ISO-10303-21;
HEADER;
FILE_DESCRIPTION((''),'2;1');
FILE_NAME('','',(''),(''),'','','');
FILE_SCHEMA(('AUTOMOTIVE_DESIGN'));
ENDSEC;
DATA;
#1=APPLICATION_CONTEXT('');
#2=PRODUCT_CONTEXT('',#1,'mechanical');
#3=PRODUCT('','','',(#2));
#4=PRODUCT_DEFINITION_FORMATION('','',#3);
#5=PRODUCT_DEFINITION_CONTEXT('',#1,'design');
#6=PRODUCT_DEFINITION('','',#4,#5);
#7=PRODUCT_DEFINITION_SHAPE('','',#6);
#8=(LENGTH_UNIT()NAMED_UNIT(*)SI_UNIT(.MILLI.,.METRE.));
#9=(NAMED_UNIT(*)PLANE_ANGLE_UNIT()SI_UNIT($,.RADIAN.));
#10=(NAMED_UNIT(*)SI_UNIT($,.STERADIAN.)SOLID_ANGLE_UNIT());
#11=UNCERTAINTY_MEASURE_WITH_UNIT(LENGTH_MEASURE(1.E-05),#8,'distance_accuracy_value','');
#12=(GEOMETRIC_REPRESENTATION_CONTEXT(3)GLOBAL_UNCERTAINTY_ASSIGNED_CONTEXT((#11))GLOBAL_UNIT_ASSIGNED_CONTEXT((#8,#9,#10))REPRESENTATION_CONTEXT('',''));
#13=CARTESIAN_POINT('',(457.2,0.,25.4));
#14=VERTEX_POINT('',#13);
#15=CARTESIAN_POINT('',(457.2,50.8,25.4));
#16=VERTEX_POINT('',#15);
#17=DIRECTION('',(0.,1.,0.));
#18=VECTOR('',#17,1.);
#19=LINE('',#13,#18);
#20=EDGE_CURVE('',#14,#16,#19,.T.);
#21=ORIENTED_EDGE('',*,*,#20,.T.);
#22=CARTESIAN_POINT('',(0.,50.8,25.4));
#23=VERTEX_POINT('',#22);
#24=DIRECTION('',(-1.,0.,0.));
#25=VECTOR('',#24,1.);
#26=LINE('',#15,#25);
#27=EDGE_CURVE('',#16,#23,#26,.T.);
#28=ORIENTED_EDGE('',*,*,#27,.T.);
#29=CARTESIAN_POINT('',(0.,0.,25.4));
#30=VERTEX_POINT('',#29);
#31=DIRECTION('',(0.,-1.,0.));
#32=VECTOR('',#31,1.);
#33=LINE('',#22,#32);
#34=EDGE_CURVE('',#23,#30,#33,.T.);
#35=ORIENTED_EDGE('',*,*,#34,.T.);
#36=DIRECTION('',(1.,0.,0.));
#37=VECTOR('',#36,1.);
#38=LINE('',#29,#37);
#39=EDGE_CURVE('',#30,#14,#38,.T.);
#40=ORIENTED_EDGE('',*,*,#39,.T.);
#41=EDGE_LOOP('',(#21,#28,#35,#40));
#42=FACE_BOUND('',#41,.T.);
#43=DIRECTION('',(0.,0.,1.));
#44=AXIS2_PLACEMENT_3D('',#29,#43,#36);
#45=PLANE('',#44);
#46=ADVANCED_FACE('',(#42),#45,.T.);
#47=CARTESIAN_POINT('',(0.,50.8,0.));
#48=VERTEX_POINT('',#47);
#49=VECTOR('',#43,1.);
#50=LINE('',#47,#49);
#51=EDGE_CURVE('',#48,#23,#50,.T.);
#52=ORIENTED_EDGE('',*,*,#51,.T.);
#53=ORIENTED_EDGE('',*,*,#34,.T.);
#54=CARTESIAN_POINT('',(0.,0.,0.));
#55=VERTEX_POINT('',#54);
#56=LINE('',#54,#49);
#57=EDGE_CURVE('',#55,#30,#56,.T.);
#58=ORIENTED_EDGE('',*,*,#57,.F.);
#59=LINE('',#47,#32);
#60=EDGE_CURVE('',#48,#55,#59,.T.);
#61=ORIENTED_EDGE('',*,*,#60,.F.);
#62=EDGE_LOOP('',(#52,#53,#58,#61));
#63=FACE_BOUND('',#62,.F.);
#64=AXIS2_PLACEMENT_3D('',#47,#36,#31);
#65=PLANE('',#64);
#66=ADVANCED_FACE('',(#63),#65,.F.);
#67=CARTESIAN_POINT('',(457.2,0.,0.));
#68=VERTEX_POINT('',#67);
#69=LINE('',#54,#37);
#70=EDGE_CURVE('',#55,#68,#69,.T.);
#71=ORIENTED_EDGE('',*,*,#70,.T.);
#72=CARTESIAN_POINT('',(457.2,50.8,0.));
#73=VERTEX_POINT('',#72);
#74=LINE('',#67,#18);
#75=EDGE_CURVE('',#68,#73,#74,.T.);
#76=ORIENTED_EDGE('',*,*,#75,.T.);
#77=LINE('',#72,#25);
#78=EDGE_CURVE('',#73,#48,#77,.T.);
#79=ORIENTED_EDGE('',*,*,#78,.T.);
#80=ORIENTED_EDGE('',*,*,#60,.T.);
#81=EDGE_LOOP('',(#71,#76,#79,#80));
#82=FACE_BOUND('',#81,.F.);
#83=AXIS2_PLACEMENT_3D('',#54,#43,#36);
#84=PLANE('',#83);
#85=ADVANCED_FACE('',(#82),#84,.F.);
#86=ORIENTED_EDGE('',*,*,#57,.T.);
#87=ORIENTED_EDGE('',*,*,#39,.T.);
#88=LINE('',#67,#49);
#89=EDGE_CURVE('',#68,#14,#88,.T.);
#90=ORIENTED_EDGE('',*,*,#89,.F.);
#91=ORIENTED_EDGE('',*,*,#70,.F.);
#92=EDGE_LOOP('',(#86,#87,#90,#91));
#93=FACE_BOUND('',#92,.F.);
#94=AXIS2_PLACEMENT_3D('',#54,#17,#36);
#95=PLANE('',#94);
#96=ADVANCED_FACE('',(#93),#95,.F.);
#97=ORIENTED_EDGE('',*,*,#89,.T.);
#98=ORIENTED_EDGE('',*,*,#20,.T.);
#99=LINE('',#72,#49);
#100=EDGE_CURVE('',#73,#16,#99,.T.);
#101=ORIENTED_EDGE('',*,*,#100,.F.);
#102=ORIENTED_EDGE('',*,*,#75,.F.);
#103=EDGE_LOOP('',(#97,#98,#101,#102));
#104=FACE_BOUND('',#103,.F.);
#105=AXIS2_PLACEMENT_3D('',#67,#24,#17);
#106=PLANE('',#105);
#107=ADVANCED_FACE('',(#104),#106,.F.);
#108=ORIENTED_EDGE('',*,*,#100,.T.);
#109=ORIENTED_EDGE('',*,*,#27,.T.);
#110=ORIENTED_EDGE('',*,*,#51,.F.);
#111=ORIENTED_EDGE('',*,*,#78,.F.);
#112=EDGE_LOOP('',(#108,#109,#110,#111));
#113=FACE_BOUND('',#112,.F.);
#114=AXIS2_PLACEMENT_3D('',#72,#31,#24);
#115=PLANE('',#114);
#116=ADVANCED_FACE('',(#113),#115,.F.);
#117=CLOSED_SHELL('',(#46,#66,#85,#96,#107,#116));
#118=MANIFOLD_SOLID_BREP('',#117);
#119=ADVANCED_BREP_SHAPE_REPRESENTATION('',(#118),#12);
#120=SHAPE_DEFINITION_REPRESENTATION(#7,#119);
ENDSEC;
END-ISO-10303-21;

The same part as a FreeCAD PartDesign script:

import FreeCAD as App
import Part
import Sketcher
Q = App.Units.Quantity

doc = App.newDocument("Part")
params = doc.addObject("Spreadsheet::Sheet", "Params")
for row, (alias, value) in enumerate([
    ("sketch1_width", "18 in"),
    ("sketch1_height", "2 in"),
    ("pad1_length", "1 in"),
], start=1):
    params.set(f"A{row}", alias)
    params.set(f"B{row}", "=" + value)
    params.setAlias(f"B{row}", alias)

body = doc.addObject("PartDesign::Body", "Body")

# Sketch on XY plane
sketch1 = body.newObject("Sketcher::SketchObject", "Sketch")
sketch1.AttachmentSupport = (doc.getObject("XY_Plane"), [""])
sketch1.MapMode = "FlatFace"
sketch1.addGeometry([
    Part.LineSegment(App.Vector(0, 51, 0), App.Vector(0, 0, 0)),
    Part.LineSegment(App.Vector(0, 0, 0), App.Vector(457, 0, 0)),
    Part.LineSegment(App.Vector(457, 0, 0), App.Vector(457, 51, 0)),
    Part.LineSegment(App.Vector(457, 51, 0), App.Vector(0, 51, 0)),
], False)
sketch1.addConstraint([
    Sketcher.Constraint("Coincident", 0, 2, 1, 1),
    Sketcher.Constraint("Coincident", 1, 2, 2, 1),
    Sketcher.Constraint("Coincident", 2, 2, 3, 1),
    Sketcher.Constraint("Coincident", 3, 2, 0, 1),
    Sketcher.Constraint("Vertical", 0),
    Sketcher.Constraint("Horizontal", 1),
    Sketcher.Constraint("Vertical", 2),
    Sketcher.Constraint("Horizontal", 3),
    Sketcher.Constraint("Coincident", 0, 2, -1, 1),
    Sketcher.Constraint("DistanceX", 1, 1, 1, 2, Q("18 in")),
    Sketcher.Constraint("DistanceY", 0, 2, 0, 1, Q("2 in")),
])
sketch1.setExpression("Constraints[9]", "Params.sketch1_width")
sketch1.setExpression("Constraints[10]", "Params.sketch1_height")
pad1 = body.newObject("PartDesign::Pad", "Pad")
pad1.Profile = sketch1
pad1.setExpression("Length", "Params.pad1_length")

doc.recompute()
